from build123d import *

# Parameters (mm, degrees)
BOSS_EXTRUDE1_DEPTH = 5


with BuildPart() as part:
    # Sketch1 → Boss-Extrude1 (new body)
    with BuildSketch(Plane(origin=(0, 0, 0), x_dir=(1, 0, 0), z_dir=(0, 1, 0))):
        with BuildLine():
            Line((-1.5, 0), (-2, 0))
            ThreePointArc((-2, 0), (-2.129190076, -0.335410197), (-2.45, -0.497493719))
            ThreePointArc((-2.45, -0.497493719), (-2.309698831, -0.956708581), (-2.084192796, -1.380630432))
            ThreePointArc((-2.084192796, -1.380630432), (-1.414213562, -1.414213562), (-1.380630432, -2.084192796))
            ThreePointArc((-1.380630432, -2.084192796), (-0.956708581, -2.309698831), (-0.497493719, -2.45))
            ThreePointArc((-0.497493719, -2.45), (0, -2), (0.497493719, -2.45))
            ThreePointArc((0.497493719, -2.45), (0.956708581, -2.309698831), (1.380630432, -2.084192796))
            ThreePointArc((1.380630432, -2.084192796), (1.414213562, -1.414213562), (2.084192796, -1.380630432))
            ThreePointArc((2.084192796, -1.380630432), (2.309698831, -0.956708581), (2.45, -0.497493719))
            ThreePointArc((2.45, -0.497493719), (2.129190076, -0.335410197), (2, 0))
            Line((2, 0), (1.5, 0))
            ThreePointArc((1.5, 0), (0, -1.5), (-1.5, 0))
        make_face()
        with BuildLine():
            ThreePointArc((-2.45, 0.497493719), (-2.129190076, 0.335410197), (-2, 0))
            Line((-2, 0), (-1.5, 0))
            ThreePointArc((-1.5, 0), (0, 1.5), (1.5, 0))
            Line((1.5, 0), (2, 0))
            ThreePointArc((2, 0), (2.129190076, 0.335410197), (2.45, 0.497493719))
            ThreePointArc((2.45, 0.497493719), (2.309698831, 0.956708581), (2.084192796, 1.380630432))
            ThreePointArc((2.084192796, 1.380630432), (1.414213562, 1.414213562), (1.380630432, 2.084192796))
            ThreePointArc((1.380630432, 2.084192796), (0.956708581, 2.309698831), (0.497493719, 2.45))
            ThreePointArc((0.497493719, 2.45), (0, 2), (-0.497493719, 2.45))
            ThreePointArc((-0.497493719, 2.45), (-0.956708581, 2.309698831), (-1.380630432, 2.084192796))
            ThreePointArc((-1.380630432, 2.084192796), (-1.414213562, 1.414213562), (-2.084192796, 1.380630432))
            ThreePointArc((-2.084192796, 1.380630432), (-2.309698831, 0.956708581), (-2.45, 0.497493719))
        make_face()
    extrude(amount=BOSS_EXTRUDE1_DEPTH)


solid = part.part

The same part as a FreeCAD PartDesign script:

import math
import FreeCAD as App
import Part
import Sketcher
Q = App.Units.Quantity

doc = App.newDocument("Part")
body = doc.addObject("PartDesign::Body", "Body")

# Sketch on XZ plane
sketch1 = body.newObject("Sketcher::SketchObject", "Sketch")
sketch1.AttachmentSupport = (doc.getObject("XZ_Plane"), [""])
sketch1.MapMode = "FlatFace"
sketch1.addGeometry([
    Part.ArcOfCircle(Part.Circle(App.Vector(-2.5, 0, 0), App.Vector(0, 0, 1), 0.5), math.radians(0), math.radians(84.260829)),  # 0
    Part.ArcOfCircle(Part.Circle(App.Vector(0, 0, 0), App.Vector(0, 0, 1), 2.5), math.radians(146.478341), math.radians(168.521659)),  # 1
    Part.ArcOfCircle(Part.Circle(App.Vector(-1.767767, 1.767767, 0), App.Vector(0, 0, 1), 0.5), math.radians(-129.26083), math.radians(39.26083)),  # 2
    Part.ArcOfCircle(Part.Circle(App.Vector(0, 0, 0), App.Vector(0, 0, 1), 2.5), math.radians(101.478341), math.radians(123.521659)),  # 3
    Part.ArcOfCircle(Part.Circle(App.Vector(0, 2.5, 0), App.Vector(0, 0, 1), 0.5), math.radians(-174.26083), math.radians(-5.73917)),  # 4
    Part.ArcOfCircle(Part.Circle(App.Vector(0, 0, 0), App.Vector(0, 0, 1), 2.5), math.radians(56.478341), math.radians(78.521659)),  # 5
    Part.ArcOfCircle(Part.Circle(App.Vector(1.767767, 1.767767, 0), App.Vector(0, 0, 1), 0.5), math.radians(140.73917), math.radians(309.26083)),  # 6
    Part.ArcOfCircle(Part.Circle(App.Vector(0, 0, 0), App.Vector(0, 0, 1), 2.5), math.radians(11.478341), math.radians(33.521659)),  # 7
    Part.ArcOfCircle(Part.Circle(App.Vector(2.5, 0, 0), App.Vector(0, 0, 1), 0.5), math.radians(95.739171), math.radians(180)),  # 8
    Part.ArcOfCircle(Part.Circle(App.Vector(2.5, 0, 0), App.Vector(0, 0, 1), 0.5), math.radians(180), math.radians(264.260829)),  # 9
    Part.ArcOfCircle(Part.Circle(App.Vector(0, 0, 0), App.Vector(0, 0, 1), 2.5), math.radians(-33.521659), math.radians(-11.478341)),  # 10
    Part.ArcOfCircle(Part.Circle(App.Vector(1.767767, -1.767767, 0), App.Vector(0, 0, 1), 0.5), math.radians(50.73917), math.radians(219.26083)),  # 11
    Part.ArcOfCircle(Part.Circle(App.Vector(0, 0, 0), App.Vector(0, 0, 1), 2.5), math.radians(-78.521659), math.radians(-56.478341)),  # 12
    Part.ArcOfCircle(Part.Circle(App.Vector(0, -2.5, 0), App.Vector(0, 0, 1), 0.5), math.radians(5.73917), math.radians(174.26083)),  # 13
    Part.ArcOfCircle(Part.Circle(App.Vector(0, 0, 0), App.Vector(0, 0, 1), 2.5), math.radians(-123.521659), math.radians(-101.478341)),  # 14
    Part.ArcOfCircle(Part.Circle(App.Vector(-1.767767, -1.767767, 0), App.Vector(0, 0, 1), 0.5), math.radians(-39.26083), math.radians(129.26083)),  # 15
    Part.ArcOfCircle(Part.Circle(App.Vector(0, 0, 0), App.Vector(0, 0, 1), 2.5), math.radians(-168.521659), math.radians(-146.478341)),  # 16
    Part.ArcOfCircle(Part.Circle(App.Vector(-2.5, 0, 0), App.Vector(0, 0, 1), 0.5), math.radians(-84.260829), math.radians(0)),  # 17
    Part.Circle(App.Vector(0, 0, 0), App.Vector(0, 0, 1), 1.5),  # 18
], False)
sketch1.addConstraint([
    Sketcher.Constraint("Coincident", 0, 2, 1, 2),
    Sketcher.Constraint("Coincident", 1, 1, 2, 1),
    Sketcher.Constraint("Coincident", 2, 2, 3, 2),
    Sketcher.Constraint("Coincident", 3, 1, 4, 1),
    Sketcher.Constraint("Coincident", 4, 2, 5, 2),
    Sketcher.Constraint("Coincident", 5, 1, 6, 1),
    Sketcher.Constraint("Coincident", 6, 2, 7, 2),
    Sketcher.Constraint("Coincident", 7, 1, 8, 1),
    Sketcher.Constraint("Tangent", 8, 2, 9, 1),
    Sketcher.Constraint("Coincident", 9, 2, 10, 2),
    Sketcher.Constraint("Coincident", 10, 1, 11, 1),
    Sketcher.Constraint("Coincident", 11, 2, 12, 2),
    Sketcher.Constraint("Coincident", 12, 1, 13, 1),
    Sketcher.Constraint("Coincident", 13, 2, 14, 2),
    Sketcher.Constraint("Coincident", 14, 1, 15, 1),
    Sketcher.Constraint("Coincident", 15, 2, 16, 2),
    Sketcher.Constraint("Coincident", 16, 1, 17, 1),
    Sketcher.Constraint("Tangent", 17, 2, 0, 1),
    Sketcher.Constraint("Coincident", 1, 3, -1, 1),
    Sketcher.Constraint("Coincident", 3, 3, -1, 1),
    Sketcher.Constraint("Coincident", 5, 3, -1, 1),
    Sketcher.Constraint("Coincident", 7, 3, -1, 1),
    Sketcher.Constraint("Coincident", 10, 3, -1, 1),
    Sketcher.Constraint("Coincident", 12, 3, -1, 1),
    Sketcher.Constraint("Coincident", 14, 3, -1, 1),
    Sketcher.Constraint("Coincident", 16, 3, -1, 1),
    Sketcher.Constraint("Coincident", 18, 3, -1, 1),
    Sketcher.Constraint("Equal", 0, 2),
    Sketcher.Constraint("Equal", 1, 3),
    Sketcher.Constraint("Equal", 2, 4),
    Sketcher.Constraint("Equal", 3, 5),
    Sketcher.Constraint("Equal", 4, 6),
    Sketcher.Constraint("Equal", 5, 7),
    Sketcher.Constraint("Equal", 6, 8),
    Sketcher.Constraint("Equal", 8, 9),
    Sketcher.Constraint("Equal", 7, 10),
    Sketcher.Constraint("Equal", 9, 11),
    Sketcher.Constraint("Equal", 10, 12),
    Sketcher.Constraint("Equal", 11, 13),
    Sketcher.Constraint("Equal", 12, 14),
    Sketcher.Constraint("Equal", 13, 15),
    Sketcher.Constraint("Equal", 14, 16),
    Sketcher.Constraint("Equal", 15, 17),
    Sketcher.Constraint("Symmetric", 0, 3, 8, 3, -1, 1),
    Sketcher.Constraint("Symmetric", 2, 3, 11, 3, -1, 1),
    Sketcher.Constraint("Symmetric", 4, 3, 13, 3, -1, 1),
    Sketcher.Constraint("Symmetric", 6, 3, 15, 3, -1, 1),
    Sketcher.Constraint("Symmetric", 2, 3, 6, 3, -2),
    Sketcher.Constraint("PointOnObject", 0, 3, -1),
    Sketcher.Constraint("PointOnObject", 4, 3, -2),
    Sketcher.Constraint("PointOnObject", 8, 2, -1),
    Sketcher.Constraint("PointOnObject", 17, 2, -1),
    Sketcher.Constraint("Diameter", 18, Q("3 mm")),
    Sketcher.Constraint("Radius", 0, Q("0.5 mm")),
    Sketcher.Constraint("Radius", 1, Q("2.5 mm")),
    Sketcher.Constraint("DistanceX", -1, 1, 8, 2, Q("2 mm")),
    Sketcher.Constraint("DistanceY", -1, 1, 4, 3, Q("2.5 mm")),
    Sketcher.Constraint("DistanceY", 0, 2, 2, 2, Q("1.586699 mm")),
    Sketcher.Constraint("DistanceX", 1, 1, 3, 1, Q("1.586699 mm")),
])
pad1 = body.newObject("PartDesign::Pad", "Pad")
pad1.Profile = sketch1
pad1.Length = 5
pad1.Reversed = True

doc.recompute()
